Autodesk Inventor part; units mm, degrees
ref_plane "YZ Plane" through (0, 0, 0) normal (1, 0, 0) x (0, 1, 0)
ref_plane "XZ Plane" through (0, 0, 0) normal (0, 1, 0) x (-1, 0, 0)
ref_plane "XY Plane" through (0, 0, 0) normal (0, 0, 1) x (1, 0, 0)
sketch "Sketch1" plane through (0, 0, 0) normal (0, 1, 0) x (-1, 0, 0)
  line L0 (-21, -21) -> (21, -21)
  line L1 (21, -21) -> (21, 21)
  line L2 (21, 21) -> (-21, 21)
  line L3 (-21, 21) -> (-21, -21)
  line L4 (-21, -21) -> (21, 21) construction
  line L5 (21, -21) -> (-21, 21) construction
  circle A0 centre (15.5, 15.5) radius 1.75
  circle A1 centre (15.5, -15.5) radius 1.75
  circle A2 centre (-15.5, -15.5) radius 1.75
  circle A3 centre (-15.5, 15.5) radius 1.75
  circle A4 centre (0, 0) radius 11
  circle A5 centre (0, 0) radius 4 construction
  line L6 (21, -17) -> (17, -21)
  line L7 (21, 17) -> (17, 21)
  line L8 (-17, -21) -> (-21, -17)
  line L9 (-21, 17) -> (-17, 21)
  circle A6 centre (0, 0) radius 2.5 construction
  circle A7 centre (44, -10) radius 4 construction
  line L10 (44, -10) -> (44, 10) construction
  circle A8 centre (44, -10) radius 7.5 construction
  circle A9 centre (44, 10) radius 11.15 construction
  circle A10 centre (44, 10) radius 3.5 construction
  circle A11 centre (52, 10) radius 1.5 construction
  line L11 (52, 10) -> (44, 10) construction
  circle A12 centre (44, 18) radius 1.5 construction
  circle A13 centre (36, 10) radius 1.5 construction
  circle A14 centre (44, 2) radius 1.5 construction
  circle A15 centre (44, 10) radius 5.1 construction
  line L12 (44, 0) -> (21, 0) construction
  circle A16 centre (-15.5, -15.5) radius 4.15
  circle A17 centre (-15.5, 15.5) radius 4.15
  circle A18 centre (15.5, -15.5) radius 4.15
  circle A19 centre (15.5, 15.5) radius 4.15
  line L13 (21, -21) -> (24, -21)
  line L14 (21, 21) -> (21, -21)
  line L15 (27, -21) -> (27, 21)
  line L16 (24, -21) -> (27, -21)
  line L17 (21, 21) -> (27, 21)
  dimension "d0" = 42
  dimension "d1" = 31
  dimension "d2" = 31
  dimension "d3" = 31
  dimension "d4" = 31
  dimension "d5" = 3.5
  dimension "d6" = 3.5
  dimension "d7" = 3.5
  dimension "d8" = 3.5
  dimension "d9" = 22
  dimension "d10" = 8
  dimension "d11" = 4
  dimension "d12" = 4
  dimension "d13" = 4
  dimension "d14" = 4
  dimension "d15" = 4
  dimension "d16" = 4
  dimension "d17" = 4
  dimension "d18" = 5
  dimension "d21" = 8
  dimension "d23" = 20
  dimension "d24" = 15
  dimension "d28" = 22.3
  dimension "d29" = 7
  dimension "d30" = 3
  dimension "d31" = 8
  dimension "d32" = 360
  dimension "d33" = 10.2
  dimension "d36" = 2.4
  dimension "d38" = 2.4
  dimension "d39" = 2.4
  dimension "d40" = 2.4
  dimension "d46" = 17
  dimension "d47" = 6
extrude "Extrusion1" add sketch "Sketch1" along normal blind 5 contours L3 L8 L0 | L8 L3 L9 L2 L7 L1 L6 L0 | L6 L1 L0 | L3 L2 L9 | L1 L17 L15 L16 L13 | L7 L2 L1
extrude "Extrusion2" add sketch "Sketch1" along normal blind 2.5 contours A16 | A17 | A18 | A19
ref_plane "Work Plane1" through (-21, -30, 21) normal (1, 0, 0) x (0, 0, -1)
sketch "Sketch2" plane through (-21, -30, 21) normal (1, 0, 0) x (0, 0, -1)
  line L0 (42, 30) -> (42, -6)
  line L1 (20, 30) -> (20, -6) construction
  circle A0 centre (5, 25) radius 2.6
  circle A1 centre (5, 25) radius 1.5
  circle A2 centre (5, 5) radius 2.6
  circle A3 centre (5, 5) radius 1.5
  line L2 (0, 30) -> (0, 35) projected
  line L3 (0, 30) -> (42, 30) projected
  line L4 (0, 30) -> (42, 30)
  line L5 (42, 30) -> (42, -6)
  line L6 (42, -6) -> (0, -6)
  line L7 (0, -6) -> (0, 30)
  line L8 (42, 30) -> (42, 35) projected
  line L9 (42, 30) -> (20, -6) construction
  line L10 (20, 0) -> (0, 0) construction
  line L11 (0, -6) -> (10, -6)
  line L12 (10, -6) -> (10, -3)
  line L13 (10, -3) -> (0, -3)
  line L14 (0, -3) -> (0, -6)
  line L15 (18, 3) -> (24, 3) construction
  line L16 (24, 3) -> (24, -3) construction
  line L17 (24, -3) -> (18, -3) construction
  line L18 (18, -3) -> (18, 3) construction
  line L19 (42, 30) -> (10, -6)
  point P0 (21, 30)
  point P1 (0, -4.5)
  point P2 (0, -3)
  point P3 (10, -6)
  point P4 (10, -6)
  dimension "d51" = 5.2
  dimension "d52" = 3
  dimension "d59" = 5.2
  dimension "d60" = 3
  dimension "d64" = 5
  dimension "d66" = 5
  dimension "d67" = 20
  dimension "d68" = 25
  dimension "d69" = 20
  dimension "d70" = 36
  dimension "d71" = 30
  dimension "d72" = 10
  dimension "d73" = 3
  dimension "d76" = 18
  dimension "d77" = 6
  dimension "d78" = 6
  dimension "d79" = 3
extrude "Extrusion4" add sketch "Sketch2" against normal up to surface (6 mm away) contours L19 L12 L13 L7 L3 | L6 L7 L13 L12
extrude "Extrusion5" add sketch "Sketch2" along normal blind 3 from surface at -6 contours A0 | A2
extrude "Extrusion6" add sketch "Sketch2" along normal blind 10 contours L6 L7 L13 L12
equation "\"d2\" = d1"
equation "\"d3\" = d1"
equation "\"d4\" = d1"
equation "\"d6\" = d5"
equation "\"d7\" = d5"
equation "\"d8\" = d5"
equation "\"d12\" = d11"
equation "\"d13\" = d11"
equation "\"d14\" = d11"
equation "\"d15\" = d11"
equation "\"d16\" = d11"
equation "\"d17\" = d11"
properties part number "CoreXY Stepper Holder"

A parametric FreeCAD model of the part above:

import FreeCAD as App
import Part
import Sketcher

V = App.Vector


def add_polygon(sketch, points):
    """Adds a closed chain of lines whose ends are joined by coincident constraints."""
    first, n = sketch.GeometryCount, len(points)
    for a, b in zip(points, points[1:] + points[:1]):
        sketch.addGeometry(Part.LineSegment(App.Vector(*a, 0), App.Vector(*b, 0)), False)
    for i in range(n):
        sketch.addConstraint(Sketcher.Constraint("Coincident", first + i, 2, first + (i + 1) % n, 1))

doc = App.newDocument("Part")
body = doc.addObject("PartDesign::Body", "Body")

sketch1 = body.newObject("Sketcher::SketchObject", "Sketch")
sketch1.AttachmentSupport = (doc.getObject("XZ_Plane"), [""])
sketch1.MapMode = "FlatFace"
add_polygon(sketch1, [(21, -21), (-27, -21), (-27, 21), (21, 21)])
sketch1.addGeometry(Part.Circle(V(-15.5, 15.5, 0), V(0, 0, 1), 4.15), False)
sketch1.addGeometry(Part.Circle(V(15.5, -15.5, 0), V(0, 0, 1), 4.15), False)
sketch1.addGeometry(Part.Circle(V(-15.5, -15.5, 0), V(0, 0, 1), 4.15), False)
sketch1.addGeometry(Part.Circle(V(0, 0, 0), V(0, 0, 1), 11), False)
sketch1.addGeometry(Part.Circle(V(15.5, 15.5, 0), V(0, 0, 1), 4.15), False)
sketch1.addConstraint([
    Sketcher.Constraint("Horizontal", 0),
    Sketcher.Constraint("Vertical", 1),
    Sketcher.Constraint("Horizontal", 2),
    Sketcher.Constraint("Vertical", 3),
    Sketcher.Constraint("Coincident", 7, 3, -1, 1),
    Sketcher.Constraint("Equal", 4, 5),
    Sketcher.Constraint("Equal", 5, 6),
    Sketcher.Constraint("Equal", 6, 8),
    Sketcher.Constraint("Symmetric", 4, 3, 5, 3, -1, 1),
    Sketcher.Constraint("Symmetric", 6, 3, 8, 3, -1, 1),
    Sketcher.Constraint("Symmetric", 5, 3, 6, 3, -2),
    Sketcher.Constraint("Diameter", 7, 22.0),
    Sketcher.Constraint("DistanceY", 1, 1, 1, 2, 42.0),
    Sketcher.Constraint("DistanceX", 4, 3, 5, 3, 31.0),
    Sketcher.Constraint("DistanceY", 5, 3, 4, 3, 31.0),
    Sketcher.Constraint("Diameter", 4, 8.3),
    Sketcher.Constraint("DistanceX", 0, 2, 0, 1, 48.0),
    Sketcher.Constraint("DistanceX", 0, 2, -1, 1, 27.0),
    Sketcher.Constraint("DistanceY", 0, 2, -1, 1, 21.0),
])
pad1 = body.newObject("PartDesign::Pad", "Pad")
pad1.Profile = sketch1
pad1.Length = 5
pad1.Reversed = True

sketch2 = body.newObject("Sketcher::SketchObject", "Sketch001")
sketch2.AttachmentSupport = (doc.getObject("XZ_Plane"), [""])
sketch2.MapMode = "FlatFace"
sketch2.addGeometry([
    Part.Circle(V(15.5, -15.5, 0), V(0, 0, 1), 4.15),
    Part.Circle(V(15.5, -15.5, 0), V(0, 0, 1), 1.75),
    Part.Circle(V(15.5, 15.5, 0), V(0, 0, 1), 4.15),
    Part.Circle(V(15.5, 15.5, 0), V(0, 0, 1), 1.75),
    Part.Circle(V(-15.5, -15.5, 0), V(0, 0, 1), 4.15),
    Part.Circle(V(-15.5, -15.5, 0), V(0, 0, 1), 1.75),
    Part.Circle(V(-15.5, 15.5, 0), V(0, 0, 1), 4.15),
    Part.Circle(V(-15.5, 15.5, 0), V(0, 0, 1), 1.75),
], False)
sketch2.addConstraint([
    Sketcher.Constraint("Coincident", 1, 3, 0, 3),
    Sketcher.Constraint("Coincident", 3, 3, 2, 3),
    Sketcher.Constraint("Coincident", 5, 3, 4, 3),
    Sketcher.Constraint("Coincident", 7, 3, 6, 3),
    Sketcher.Constraint("Equal", 0, 2),
    Sketcher.Constraint("Equal", 1, 3),
    Sketcher.Constraint("Equal", 2, 4),
    Sketcher.Constraint("Equal", 3, 5),
    Sketcher.Constraint("Equal", 4, 6),
    Sketcher.Constraint("Equal", 5, 7),
    Sketcher.Constraint("Symmetric", 2, 3, 4, 3, -1, 1),
    Sketcher.Constraint("Symmetric", 0, 3, 6, 3, -1, 1),
    Sketcher.Constraint("Symmetric", 0, 3, 4, 3, -2),
    Sketcher.Constraint("Diameter", 1, 3.5),
    Sketcher.Constraint("DistanceY", 0, 3, 2, 3, 31.0),
    Sketcher.Constraint("DistanceX", 4, 3, 0, 3, 31.0),
    Sketcher.Constraint("Diameter", 0, 8.3),
])
pad2 = body.newObject("PartDesign::Pad", "Pad001")
pad2.Profile = sketch2
pad2.Length = 2.5
pad2.Reversed = True

sketch3 = body.newObject("Sketcher::SketchObject", "Sketch002")
sketch3.AttachmentSupport = (doc.getObject("YZ_Plane"), [""])
sketch3.MapMode = "FlatFace"
sketch3.AttachmentOffset = App.Placement(V(0, 0, -21), App.Rotation())
add_polygon(sketch3, [(-36, 11), (0, -21), (0, 21), (-36, 21)])
sketch3.addGeometry(Part.Circle(V(-25, 16, 0), V(0, 0, 1), 2.6), False)
sketch3.addGeometry(Part.Circle(V(-5, 16, 0), V(0, 0, 1), 2.6), False)
sketch3.addConstraint([
    Sketcher.Constraint("Vertical", 1),
    Sketcher.Constraint("Horizontal", 2),
    Sketcher.Constraint("Vertical", 3),
    Sketcher.Constraint("Equal", 4, 5),
    Sketcher.Constraint("Symmetric", 0, 2, 1, 2, -1, 1),
    Sketcher.Constraint("Horizontal", 4, 3, 5, 3),
    Sketcher.Constraint("Diameter", 4, 5.2),
    Sketcher.Constraint("DistanceX", 2, 2, 2, 1, 36.0),
    Sketcher.Constraint("DistanceY", 3, 2, 3, 1, 10.0),
    Sketcher.Constraint("DistanceX", 4, 3, -1, 1, 25.0),
    Sketcher.Constraint("DistanceX", 5, 3, -1, 1, 5.0),
    Sketcher.Constraint("DistanceY", 5, 3, 1, 2, 5.0),
    Sketcher.Constraint("DistanceY", 1, 1, 1, 2, 42.0),
])
pad3 = body.newObject("PartDesign::Pad", "Pad002")
pad3.Profile = sketch3
pad3.Length = 6
pad3.Reversed = True

sketch4 = body.newObject("Sketcher::SketchObject", "Sketch003")
sketch4.AttachmentSupport = (doc.getObject("YZ_Plane"), [""])
sketch4.MapMode = "FlatFace"
sketch4.AttachmentOffset = App.Placement(V(0, 0, -27), App.Rotation())
sketch4.addGeometry([
    Part.Circle(V(-5, 16, 0), V(0, 0, 1), 2.6),
    Part.Circle(V(-5, 16, 0), V(0, 0, 1), 1.5),
    Part.Circle(V(-25, 16, 0), V(0, 0, 1), 2.6),
    Part.Circle(V(-25, 16, 0), V(0, 0, 1), 1.5),
], False)
sketch4.addConstraint([
    Sketcher.Constraint("Coincident", 1, 3, 0, 3),
    Sketcher.Constraint("Coincident", 3, 3, 2, 3),
    Sketcher.Constraint("Equal", 0, 2),
    Sketcher.Constraint("Equal", 1, 3),
    Sketcher.Constraint("Horizontal", 1, 3, 2, 3),
    Sketcher.Constraint("Diameter", 1, 3.0),
    Sketcher.Constraint("Diameter", 0, 5.2),
    Sketcher.Constraint("DistanceX", 0, 3, -1, 1, 5.0),
    Sketcher.Constraint("DistanceX", 2, 3, -1, 1, 25.0),
    Sketcher.Constraint("DistanceY", -1, 1, 0, 3, 16.0),
])
pad4 = body.newObject("PartDesign::Pad", "Pad003")
pad4.Profile = sketch4
pad4.Length = 3

sketch5 = body.newObject("Sketcher::SketchObject", "Sketch004")
sketch5.AttachmentSupport = (doc.getObject("YZ_Plane"), [""])
sketch5.MapMode = "FlatFace"
sketch5.AttachmentOffset = App.Placement(V(0, 0, -21), App.Rotation())
add_polygon(sketch5, [(-36, 21), (-36, 11), (-33, 11), (-33, 21)])
sketch5.addConstraint([
    Sketcher.Constraint("Vertical", 0),
    Sketcher.Constraint("Horizontal", 1),
    Sketcher.Constraint("Vertical", 2),
    Sketcher.Constraint("Horizontal", 3),
    Sketcher.Constraint("DistanceX", 1, 1, 1, 2, 3.0),
    Sketcher.Constraint("DistanceY", 0, 2, 0, 1, 10.0),
    Sketcher.Constraint("DistanceX", 0, 2, -1, 1, 36.0),
    Sketcher.Constraint("DistanceY", -1, 1, 0, 2, 11.0),
])
pad5 = body.newObject("PartDesign::Pad", "Pad004")
pad5.Profile = sketch5
pad5.Length = 10

doc.recompute()
